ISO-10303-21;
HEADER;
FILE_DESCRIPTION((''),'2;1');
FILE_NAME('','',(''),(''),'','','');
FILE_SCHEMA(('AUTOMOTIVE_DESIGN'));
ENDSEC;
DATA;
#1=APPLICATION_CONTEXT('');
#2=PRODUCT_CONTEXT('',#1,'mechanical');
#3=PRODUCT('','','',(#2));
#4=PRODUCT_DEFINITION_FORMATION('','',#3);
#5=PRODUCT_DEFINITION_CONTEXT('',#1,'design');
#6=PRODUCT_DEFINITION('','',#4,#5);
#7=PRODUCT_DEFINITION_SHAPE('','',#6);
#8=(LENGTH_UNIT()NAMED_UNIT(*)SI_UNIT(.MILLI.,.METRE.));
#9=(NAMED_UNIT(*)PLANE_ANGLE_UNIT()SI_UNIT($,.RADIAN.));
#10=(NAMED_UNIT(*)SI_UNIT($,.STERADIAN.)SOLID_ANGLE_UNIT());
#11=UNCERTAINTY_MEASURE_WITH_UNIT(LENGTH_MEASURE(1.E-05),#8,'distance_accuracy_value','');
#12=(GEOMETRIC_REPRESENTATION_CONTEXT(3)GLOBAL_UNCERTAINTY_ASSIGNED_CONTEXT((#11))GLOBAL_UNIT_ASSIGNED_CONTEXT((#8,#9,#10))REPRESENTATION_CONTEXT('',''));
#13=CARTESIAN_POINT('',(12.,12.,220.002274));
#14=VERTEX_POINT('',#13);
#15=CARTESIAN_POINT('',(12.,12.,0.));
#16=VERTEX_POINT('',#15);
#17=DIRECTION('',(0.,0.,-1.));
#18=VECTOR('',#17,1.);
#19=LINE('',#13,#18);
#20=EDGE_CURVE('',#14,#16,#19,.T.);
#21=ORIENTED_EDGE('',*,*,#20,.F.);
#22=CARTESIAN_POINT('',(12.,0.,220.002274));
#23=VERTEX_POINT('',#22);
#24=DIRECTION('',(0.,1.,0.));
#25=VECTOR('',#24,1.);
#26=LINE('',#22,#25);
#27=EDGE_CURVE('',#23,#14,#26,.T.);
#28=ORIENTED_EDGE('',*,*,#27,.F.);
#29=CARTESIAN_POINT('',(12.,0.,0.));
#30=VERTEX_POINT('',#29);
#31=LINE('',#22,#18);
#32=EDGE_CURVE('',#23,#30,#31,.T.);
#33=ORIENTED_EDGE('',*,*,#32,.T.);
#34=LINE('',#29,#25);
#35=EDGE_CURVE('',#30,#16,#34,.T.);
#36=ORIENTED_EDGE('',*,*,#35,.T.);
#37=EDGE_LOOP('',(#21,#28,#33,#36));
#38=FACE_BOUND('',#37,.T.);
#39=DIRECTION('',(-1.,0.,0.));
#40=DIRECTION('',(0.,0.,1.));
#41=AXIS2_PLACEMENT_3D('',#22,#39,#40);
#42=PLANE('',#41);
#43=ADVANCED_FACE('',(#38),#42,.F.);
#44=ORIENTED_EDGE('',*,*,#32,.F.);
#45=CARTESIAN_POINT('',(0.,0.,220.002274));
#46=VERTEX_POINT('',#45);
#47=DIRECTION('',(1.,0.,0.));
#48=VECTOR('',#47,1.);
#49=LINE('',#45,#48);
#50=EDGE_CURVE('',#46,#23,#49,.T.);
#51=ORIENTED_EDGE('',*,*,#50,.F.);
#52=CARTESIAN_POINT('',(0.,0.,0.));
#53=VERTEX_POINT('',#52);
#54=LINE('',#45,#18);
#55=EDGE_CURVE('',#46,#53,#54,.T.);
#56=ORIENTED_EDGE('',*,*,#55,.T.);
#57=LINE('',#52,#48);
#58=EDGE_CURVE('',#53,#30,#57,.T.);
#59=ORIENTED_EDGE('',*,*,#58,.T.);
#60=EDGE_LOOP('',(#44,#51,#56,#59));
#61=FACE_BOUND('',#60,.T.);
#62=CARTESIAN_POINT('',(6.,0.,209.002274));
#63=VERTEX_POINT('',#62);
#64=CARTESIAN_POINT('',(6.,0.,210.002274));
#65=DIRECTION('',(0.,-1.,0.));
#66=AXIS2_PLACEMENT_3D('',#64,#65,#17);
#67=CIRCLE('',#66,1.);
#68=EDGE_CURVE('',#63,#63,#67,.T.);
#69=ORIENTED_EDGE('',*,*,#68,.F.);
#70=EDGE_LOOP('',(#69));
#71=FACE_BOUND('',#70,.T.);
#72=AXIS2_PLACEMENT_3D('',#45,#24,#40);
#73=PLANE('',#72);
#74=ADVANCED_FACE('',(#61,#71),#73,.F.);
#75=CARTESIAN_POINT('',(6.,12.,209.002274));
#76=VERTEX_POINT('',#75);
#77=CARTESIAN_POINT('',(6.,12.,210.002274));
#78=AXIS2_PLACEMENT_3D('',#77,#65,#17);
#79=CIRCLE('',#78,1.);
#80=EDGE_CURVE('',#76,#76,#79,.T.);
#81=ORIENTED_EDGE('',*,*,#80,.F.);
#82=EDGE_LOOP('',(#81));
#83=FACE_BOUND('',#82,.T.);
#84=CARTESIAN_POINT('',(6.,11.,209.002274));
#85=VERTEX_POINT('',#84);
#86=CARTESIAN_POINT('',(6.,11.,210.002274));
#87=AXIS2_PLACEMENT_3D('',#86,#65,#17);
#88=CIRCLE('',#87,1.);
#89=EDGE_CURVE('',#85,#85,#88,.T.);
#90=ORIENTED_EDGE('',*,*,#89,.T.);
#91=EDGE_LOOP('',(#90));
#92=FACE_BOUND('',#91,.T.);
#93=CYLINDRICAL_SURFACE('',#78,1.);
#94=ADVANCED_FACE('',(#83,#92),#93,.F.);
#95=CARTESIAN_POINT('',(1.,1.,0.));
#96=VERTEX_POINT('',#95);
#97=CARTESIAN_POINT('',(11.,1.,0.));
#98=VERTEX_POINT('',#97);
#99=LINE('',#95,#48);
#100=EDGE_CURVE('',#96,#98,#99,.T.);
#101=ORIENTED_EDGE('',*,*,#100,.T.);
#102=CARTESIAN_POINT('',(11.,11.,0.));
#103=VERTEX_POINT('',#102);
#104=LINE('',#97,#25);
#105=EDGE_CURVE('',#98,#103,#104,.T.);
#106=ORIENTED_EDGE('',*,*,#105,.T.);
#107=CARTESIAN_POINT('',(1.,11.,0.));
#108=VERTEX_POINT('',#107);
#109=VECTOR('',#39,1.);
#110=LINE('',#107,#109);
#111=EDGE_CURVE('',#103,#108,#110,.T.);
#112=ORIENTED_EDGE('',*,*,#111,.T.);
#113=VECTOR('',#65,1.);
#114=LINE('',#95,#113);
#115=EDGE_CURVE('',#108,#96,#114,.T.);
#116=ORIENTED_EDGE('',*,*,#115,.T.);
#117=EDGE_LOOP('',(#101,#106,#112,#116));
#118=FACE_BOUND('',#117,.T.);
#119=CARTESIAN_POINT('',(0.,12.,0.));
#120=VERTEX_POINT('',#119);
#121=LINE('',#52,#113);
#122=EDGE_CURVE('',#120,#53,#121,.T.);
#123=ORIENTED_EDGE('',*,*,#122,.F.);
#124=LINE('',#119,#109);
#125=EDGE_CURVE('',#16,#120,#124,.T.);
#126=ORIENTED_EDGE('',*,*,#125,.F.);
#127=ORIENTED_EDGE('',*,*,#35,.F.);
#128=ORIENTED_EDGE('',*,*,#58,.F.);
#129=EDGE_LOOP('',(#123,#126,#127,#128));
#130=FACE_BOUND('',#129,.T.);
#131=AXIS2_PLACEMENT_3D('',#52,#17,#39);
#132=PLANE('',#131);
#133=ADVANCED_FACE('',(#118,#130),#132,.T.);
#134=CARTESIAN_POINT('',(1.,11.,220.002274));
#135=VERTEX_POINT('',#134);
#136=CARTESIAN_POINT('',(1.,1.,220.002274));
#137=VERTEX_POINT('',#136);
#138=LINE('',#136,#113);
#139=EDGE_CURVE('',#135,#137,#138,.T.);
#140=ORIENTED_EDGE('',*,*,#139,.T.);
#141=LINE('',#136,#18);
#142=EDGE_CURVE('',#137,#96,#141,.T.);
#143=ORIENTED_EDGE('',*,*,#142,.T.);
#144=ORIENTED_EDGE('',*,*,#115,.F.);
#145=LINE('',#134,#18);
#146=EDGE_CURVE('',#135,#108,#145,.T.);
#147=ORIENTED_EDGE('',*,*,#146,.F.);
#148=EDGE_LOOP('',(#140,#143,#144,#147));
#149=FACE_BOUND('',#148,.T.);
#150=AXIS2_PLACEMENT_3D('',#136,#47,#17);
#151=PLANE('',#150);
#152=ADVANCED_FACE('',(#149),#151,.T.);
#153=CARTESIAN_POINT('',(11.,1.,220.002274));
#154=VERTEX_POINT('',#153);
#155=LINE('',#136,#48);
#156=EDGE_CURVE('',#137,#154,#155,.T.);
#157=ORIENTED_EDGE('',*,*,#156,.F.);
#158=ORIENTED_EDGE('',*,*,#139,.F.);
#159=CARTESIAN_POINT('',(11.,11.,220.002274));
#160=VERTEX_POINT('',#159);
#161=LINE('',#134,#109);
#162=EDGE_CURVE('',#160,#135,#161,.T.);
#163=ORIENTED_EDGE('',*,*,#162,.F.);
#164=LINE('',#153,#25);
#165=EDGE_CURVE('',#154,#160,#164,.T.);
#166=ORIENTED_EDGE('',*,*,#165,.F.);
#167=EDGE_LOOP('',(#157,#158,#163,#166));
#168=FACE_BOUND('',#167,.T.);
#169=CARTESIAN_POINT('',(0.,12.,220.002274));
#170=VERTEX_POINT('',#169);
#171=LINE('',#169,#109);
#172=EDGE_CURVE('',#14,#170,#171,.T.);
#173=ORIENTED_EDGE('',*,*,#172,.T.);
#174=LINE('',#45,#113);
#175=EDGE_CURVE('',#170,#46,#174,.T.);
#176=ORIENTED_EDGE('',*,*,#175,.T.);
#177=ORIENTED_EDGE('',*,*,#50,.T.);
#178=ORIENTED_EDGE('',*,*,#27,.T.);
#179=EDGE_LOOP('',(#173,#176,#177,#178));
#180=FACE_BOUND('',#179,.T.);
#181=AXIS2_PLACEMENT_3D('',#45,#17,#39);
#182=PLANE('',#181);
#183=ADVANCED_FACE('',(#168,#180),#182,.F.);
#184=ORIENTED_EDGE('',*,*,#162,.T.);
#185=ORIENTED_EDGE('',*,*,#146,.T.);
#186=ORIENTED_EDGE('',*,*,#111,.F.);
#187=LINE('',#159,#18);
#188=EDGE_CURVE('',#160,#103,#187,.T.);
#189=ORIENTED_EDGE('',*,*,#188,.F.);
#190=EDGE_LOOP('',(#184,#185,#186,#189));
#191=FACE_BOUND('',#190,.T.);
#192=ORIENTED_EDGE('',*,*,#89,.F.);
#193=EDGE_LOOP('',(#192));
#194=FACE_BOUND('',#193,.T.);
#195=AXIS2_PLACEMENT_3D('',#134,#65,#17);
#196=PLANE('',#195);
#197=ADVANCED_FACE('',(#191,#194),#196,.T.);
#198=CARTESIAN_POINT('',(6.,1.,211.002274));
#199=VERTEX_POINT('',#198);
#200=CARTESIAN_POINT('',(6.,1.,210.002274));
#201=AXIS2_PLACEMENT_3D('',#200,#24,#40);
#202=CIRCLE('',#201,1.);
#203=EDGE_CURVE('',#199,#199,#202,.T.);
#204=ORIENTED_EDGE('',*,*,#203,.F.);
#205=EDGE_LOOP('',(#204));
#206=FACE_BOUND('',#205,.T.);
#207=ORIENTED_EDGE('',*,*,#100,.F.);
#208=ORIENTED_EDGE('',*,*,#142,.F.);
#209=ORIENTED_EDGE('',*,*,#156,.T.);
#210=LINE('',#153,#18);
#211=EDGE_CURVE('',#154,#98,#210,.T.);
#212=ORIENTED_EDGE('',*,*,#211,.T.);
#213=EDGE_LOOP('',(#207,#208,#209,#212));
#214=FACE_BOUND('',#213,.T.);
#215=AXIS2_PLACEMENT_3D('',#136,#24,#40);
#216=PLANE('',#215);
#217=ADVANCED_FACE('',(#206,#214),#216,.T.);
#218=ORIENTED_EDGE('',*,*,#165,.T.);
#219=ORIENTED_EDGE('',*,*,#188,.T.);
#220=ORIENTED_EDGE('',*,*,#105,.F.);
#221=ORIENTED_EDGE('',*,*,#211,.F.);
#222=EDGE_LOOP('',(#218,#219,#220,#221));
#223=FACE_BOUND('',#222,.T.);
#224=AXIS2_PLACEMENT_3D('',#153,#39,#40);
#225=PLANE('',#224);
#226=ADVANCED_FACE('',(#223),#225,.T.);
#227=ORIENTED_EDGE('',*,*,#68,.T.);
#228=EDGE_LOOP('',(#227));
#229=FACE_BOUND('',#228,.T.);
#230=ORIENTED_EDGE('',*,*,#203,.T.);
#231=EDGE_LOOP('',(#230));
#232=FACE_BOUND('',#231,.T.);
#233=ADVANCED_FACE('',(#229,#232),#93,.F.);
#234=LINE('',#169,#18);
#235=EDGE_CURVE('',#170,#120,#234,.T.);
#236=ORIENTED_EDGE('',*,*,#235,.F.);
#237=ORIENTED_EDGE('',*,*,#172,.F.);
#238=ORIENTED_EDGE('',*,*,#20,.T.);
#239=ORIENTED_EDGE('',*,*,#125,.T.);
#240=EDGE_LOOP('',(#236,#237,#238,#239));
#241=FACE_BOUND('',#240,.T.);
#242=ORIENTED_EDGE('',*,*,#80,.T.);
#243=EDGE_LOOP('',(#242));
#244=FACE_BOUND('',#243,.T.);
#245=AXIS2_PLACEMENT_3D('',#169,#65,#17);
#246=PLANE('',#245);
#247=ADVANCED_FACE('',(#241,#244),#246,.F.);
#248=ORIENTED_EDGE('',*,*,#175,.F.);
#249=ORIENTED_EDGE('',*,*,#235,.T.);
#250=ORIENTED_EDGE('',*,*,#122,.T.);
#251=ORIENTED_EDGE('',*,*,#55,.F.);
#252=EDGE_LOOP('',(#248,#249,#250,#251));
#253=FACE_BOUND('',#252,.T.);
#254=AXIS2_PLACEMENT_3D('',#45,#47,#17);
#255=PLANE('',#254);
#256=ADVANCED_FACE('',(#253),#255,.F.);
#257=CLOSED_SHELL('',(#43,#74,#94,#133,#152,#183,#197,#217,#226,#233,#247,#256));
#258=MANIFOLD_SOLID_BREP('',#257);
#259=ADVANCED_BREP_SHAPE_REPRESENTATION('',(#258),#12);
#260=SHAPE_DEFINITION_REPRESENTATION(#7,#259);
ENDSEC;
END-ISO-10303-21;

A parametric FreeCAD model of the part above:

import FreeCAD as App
import Part
import Sketcher


def add_polygon(sketch, points):
    """Adds a closed chain of lines whose ends are joined by coincident constraints."""
    first, n = sketch.GeometryCount, len(points)
    for a, b in zip(points, points[1:] + points[:1]):
        sketch.addGeometry(Part.LineSegment(App.Vector(*a, 0), App.Vector(*b, 0)), False)
    for i in range(n):
        sketch.addConstraint(Sketcher.Constraint("Coincident", first + i, 2, first + (i + 1) % n, 1))

doc = App.newDocument("Part")
body = doc.addObject("PartDesign::Body", "Body")

sketch1 = body.newObject("Sketcher::SketchObject", "Sketch")
sketch1.AttachmentSupport = (doc.getObject("XY_Plane"), [""])
sketch1.MapMode = "FlatFace"
add_polygon(sketch1, [(0, 12), (0, 0), (12, 0), (12, 12)])
add_polygon(sketch1, [(11, 1), (1, 1), (1, 11), (11, 11)])
sketch1.addConstraint([
    Sketcher.Constraint("Vertical", 0),
    Sketcher.Constraint("Horizontal", 1),
    Sketcher.Constraint("Vertical", 2),
    Sketcher.Constraint("Horizontal", 3),
    Sketcher.Constraint("Horizontal", 4),
    Sketcher.Constraint("Vertical", 5),
    Sketcher.Constraint("Horizontal", 6),
    Sketcher.Constraint("Vertical", 7),
    Sketcher.Constraint("Coincident", 0, 2, -1, 1),
    Sketcher.Constraint("Equal", 3, 0),
    Sketcher.Constraint("Equal", 6, 5),
    Sketcher.Constraint("DistanceX", 1, 1, 1, 2, 12.0),
    Sketcher.Constraint("DistanceX", 4, 2, 4, 1, 10.0),
    Sketcher.Constraint("DistanceX", -1, 1, 4, 2, 1.0),
    Sketcher.Constraint("DistanceY", -1, 1, 4, 2, 1.0),
])
pad1 = body.newObject("PartDesign::Pad", "Pad")
pad1.Profile = sketch1
pad1.Length = 220.002274

sketch2 = body.newObject("Sketcher::SketchObject", "Sketch001")
sketch2.AttachmentSupport = (doc.getObject("XZ_Plane"), [""])
sketch2.MapMode = "FlatFace"
sketch2.addGeometry(Part.Circle(App.Vector(6, 210.002274, 0), App.Vector(0, 0, 1), 1), False)
sketch2.addConstraint([
    Sketcher.Constraint("Diameter", 0, 2.0),
    Sketcher.Constraint("DistanceX", -1, 1, 0, 3, 6.0),
    Sketcher.Constraint("DistanceY", -1, 1, 0, 3, 210.002274),
])
pocket1 = body.newObject("PartDesign::Pocket", "Pocket")
pocket1.Profile = sketch2
pocket1.Length = 12

doc.recompute()
